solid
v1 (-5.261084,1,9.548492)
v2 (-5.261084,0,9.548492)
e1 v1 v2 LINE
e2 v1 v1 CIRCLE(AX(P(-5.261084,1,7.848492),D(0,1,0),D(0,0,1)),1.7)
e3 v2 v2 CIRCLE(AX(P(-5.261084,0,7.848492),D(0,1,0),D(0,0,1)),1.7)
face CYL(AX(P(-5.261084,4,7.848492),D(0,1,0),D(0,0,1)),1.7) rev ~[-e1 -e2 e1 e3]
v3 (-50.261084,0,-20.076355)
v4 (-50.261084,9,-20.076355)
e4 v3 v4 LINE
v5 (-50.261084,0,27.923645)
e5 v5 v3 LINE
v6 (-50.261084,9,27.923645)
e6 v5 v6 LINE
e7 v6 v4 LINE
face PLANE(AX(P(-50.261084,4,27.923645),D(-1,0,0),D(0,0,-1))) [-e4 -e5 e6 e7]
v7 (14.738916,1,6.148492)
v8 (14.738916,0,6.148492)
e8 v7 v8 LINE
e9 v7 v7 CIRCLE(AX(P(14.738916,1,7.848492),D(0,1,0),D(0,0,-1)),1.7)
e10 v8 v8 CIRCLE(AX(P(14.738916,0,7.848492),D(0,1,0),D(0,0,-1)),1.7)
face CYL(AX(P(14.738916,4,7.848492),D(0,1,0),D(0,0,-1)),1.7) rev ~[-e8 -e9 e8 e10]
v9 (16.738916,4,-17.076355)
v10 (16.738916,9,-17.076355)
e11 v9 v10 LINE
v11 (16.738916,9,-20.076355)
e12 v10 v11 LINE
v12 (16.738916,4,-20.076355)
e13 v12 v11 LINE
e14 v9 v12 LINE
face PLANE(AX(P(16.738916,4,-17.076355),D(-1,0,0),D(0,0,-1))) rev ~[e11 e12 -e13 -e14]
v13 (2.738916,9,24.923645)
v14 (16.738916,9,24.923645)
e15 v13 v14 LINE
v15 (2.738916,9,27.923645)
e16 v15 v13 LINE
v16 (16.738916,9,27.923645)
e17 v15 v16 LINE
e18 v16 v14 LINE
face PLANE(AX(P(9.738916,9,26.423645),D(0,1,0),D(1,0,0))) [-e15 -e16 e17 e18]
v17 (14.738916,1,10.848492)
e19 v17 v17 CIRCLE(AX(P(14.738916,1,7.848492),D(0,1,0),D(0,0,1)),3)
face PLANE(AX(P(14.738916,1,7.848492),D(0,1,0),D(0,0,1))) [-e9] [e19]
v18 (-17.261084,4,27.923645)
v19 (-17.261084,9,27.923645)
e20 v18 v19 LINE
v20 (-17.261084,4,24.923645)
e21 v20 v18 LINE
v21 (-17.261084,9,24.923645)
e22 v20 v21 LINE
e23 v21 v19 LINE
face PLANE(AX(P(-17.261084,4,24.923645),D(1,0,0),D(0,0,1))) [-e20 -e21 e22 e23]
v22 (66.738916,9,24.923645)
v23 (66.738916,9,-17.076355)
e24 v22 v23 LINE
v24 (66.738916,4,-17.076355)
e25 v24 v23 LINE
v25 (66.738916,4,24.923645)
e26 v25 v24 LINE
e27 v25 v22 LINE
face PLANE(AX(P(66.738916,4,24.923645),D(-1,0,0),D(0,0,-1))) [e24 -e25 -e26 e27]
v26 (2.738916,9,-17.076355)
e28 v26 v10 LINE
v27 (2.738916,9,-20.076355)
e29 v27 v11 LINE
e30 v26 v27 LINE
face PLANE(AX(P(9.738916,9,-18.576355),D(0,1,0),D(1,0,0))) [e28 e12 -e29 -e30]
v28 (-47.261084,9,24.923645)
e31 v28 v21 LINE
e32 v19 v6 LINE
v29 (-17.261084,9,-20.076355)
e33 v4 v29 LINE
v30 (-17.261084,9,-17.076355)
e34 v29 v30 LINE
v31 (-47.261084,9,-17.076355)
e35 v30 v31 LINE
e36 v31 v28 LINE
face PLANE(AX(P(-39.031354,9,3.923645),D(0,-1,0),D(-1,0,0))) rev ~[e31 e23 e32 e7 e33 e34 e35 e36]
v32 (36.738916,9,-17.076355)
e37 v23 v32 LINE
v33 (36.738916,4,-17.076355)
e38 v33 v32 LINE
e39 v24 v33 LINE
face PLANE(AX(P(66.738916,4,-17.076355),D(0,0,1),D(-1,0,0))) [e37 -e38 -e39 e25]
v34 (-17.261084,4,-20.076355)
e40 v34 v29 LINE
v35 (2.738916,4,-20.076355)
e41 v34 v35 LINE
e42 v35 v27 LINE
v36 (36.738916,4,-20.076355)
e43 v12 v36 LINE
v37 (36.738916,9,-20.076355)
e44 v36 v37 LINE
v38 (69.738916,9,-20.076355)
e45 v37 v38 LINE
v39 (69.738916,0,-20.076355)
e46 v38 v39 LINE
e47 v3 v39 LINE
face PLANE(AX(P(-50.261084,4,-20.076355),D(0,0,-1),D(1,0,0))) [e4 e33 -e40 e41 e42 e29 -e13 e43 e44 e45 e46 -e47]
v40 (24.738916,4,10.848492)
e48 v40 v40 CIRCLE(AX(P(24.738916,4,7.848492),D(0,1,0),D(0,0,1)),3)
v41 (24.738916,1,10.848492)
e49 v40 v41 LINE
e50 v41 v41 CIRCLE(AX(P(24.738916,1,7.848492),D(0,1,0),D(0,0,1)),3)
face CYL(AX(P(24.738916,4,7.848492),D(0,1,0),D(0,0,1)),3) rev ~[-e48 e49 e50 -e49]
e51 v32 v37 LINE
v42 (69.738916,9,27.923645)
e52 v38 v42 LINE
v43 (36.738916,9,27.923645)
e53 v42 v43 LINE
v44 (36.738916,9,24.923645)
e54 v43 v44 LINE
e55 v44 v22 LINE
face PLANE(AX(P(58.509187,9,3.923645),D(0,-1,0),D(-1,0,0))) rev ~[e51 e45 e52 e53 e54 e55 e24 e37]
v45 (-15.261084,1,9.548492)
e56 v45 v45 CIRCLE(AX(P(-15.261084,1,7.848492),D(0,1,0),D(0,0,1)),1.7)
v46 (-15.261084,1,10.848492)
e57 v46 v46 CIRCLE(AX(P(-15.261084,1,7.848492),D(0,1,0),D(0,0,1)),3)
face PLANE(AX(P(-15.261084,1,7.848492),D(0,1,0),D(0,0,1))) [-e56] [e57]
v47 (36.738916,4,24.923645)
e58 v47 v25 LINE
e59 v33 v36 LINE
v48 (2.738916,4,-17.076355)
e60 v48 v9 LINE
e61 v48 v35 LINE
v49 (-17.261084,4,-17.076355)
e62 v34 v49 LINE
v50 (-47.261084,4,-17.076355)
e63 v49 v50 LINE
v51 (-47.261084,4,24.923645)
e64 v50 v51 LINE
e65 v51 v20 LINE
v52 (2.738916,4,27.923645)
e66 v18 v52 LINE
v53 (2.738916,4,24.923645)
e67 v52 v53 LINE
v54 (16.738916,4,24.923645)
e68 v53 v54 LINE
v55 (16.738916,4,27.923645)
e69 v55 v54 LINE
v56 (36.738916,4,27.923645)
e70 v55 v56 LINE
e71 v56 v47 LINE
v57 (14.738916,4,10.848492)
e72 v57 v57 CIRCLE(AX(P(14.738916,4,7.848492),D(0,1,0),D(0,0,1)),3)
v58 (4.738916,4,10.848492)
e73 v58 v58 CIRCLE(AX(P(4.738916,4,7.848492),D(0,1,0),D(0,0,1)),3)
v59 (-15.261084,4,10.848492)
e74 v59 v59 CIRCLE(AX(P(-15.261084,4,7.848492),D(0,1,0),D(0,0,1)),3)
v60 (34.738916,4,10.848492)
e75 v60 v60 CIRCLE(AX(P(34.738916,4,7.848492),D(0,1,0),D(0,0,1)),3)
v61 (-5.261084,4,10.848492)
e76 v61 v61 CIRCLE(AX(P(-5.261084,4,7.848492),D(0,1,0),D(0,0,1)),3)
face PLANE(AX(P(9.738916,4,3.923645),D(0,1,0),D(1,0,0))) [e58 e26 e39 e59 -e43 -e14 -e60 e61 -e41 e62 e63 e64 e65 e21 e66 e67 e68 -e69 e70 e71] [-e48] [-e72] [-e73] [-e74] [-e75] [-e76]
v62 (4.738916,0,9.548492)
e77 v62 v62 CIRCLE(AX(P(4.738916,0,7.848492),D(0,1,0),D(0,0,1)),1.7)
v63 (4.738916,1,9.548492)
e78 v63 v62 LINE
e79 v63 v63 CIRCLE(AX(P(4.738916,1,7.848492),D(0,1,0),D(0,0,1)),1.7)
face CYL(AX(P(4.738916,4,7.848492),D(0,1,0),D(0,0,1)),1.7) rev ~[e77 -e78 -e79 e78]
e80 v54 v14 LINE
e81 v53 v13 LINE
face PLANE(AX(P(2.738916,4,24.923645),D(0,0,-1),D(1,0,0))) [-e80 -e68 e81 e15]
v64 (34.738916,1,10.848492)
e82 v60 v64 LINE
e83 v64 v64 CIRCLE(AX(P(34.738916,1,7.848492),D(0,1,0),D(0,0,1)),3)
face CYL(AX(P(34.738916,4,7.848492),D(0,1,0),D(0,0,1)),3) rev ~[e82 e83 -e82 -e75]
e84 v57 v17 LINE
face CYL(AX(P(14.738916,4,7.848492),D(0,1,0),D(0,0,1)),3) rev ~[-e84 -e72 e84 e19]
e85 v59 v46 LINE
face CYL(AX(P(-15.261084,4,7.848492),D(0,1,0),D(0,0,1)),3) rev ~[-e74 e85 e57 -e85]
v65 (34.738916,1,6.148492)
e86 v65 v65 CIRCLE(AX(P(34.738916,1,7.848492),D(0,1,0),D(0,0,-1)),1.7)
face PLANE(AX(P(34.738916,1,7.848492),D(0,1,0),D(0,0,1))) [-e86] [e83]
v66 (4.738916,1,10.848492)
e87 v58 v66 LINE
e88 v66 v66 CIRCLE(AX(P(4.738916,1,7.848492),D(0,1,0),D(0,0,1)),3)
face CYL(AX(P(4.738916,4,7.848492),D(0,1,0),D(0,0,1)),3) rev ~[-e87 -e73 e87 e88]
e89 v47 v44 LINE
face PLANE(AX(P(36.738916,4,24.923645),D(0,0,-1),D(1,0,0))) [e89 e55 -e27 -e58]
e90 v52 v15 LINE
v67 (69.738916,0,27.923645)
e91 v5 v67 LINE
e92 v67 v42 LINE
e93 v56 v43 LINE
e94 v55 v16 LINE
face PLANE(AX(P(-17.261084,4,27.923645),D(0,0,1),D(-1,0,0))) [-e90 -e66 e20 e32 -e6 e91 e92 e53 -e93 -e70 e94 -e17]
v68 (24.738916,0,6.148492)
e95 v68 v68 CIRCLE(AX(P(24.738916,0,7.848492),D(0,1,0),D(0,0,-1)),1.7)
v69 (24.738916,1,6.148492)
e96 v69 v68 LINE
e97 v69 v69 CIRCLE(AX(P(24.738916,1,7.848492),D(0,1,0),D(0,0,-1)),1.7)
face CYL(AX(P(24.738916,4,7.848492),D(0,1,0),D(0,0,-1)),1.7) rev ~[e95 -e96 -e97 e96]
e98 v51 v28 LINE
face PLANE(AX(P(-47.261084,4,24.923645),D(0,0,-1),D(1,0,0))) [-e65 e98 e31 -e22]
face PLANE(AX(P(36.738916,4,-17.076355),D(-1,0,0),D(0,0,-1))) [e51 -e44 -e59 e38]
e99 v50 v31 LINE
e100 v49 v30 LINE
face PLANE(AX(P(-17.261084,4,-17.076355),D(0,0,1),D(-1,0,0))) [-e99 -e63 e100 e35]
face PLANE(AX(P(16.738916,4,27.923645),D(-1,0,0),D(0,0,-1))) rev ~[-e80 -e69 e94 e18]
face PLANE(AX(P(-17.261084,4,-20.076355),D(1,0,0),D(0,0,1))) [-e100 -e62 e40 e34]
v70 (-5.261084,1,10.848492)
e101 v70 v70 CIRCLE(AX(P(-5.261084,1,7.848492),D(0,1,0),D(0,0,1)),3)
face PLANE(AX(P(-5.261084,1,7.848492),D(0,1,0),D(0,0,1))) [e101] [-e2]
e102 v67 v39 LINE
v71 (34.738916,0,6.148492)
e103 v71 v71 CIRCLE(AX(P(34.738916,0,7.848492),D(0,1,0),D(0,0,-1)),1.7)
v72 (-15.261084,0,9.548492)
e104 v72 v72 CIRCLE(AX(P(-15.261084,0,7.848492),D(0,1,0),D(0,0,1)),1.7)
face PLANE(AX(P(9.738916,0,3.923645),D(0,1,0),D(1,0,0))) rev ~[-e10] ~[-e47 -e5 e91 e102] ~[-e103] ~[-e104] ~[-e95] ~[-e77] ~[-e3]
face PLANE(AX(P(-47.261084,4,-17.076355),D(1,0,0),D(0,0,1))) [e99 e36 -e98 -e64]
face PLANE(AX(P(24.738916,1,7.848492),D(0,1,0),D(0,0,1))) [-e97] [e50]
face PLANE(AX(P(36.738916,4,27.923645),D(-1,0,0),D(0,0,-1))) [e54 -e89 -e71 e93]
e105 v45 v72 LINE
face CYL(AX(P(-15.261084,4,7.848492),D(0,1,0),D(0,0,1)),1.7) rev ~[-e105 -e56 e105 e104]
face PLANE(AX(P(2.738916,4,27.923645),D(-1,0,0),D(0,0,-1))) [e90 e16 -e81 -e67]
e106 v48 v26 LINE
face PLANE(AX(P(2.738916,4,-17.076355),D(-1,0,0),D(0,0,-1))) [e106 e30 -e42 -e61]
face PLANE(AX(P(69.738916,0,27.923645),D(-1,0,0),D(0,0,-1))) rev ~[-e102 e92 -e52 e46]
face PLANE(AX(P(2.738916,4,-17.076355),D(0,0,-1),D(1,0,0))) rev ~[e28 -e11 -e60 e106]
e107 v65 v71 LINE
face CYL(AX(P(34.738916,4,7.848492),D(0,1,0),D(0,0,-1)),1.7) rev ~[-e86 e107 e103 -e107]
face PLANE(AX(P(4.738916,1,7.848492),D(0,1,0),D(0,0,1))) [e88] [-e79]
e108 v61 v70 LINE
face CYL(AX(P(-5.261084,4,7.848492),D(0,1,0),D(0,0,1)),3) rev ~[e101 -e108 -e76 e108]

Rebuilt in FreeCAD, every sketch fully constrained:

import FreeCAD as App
import Part
import Sketcher

V = App.Vector
Q = App.Units.Quantity


def add_polygon(sketch, points):
    """Adds a closed chain of lines whose ends are joined by coincident constraints."""
    first, n = sketch.GeometryCount, len(points)
    for a, b in zip(points, points[1:] + points[:1]):
        sketch.addGeometry(Part.LineSegment(App.Vector(*a, 0), App.Vector(*b, 0)), False)
    for i in range(n):
        sketch.addConstraint(Sketcher.Constraint("Coincident", first + i, 2, first + (i + 1) % n, 1))

doc = App.newDocument("Part")
body = doc.addObject("PartDesign::Body", "Body")

sketch1 = doc.addObject("Sketcher::SketchObject", "Sketch")
body.addObject(sketch1)
sketch1.AttachmentSupport = (doc.XZ_Plane, [""])
sketch1.MapMode = "FlatFace"
add_polygon(sketch1, [(-50, -20), (-50, 28), (70, 28), (70, -20)])
sketch1.addConstraint(Sketcher.Constraint("Vertical", 0))
sketch1.addConstraint(Sketcher.Constraint("Horizontal", 1))
sketch1.addConstraint(Sketcher.Constraint("Vertical", 2))
sketch1.addConstraint(Sketcher.Constraint("Horizontal", 3))
sketch1.addConstraint(Sketcher.Constraint("DistanceX", 1, 1, 1, 2, Q("120 mm")))
sketch1.addConstraint(Sketcher.Constraint("DistanceY", 0, 1, 0, 2, Q("48 mm")))
sketch1.addConstraint(Sketcher.Constraint("DistanceX", 0, 2, -1, 1, Q("50.261084 mm")))
sketch1.addConstraint(Sketcher.Constraint("DistanceY", -1, 1, 0, 2, Q("27.923645 mm")))
pad1 = doc.addObject("PartDesign::Pad", "Pad")
body.addObject(pad1)
pad1.Profile = sketch1
pad1.Length = 4
pad1.Reversed = True

sketch2 = doc.addObject("Sketcher::SketchObject", "Sketch001")
body.addObject(sketch2)
sketch2.AttachmentSupport = (doc.XZ_Plane, [""])
sketch2.MapMode = "FlatFace"
sketch2.AttachmentOffset = App.Placement(V(0, 0, -4), App.Rotation())
add_polygon(sketch2, [(-17.3, -20.1), (-50.3, -20.1), (-50.3, 27.9), (-17.3, 27.9), (-17.3, 24.9), (-47.3, 24.9), (-47.3, -17.1), (-17.3, -17.1)])
add_polygon(sketch2, [(69.7, 27.9), (69.7, -20.1), (36.7, -20.1), (36.7, -17.1), (66.7, -17.1), (66.7, 24.9), (36.7, 24.9), (36.7, 27.9)])
add_polygon(sketch2, [(2.7, -20.1), (2.7, -17.1), (16.7, -17.1), (16.7, -20.1)])
add_polygon(sketch2, [(2.7, 24.9), (2.7, 27.9), (16.7, 27.9), (16.7, 24.9)])
sketch2.addConstraint(Sketcher.Constraint("Horizontal", 0))
sketch2.addConstraint(Sketcher.Constraint("Vertical", 1))
sketch2.addConstraint(Sketcher.Constraint("Horizontal", 2))
sketch2.addConstraint(Sketcher.Constraint("Vertical", 3))
sketch2.addConstraint(Sketcher.Constraint("Horizontal", 4))
sketch2.addConstraint(Sketcher.Constraint("Vertical", 5))
sketch2.addConstraint(Sketcher.Constraint("Horizontal", 6))
sketch2.addConstraint(Sketcher.Constraint("Vertical", 7))
sketch2.addConstraint(Sketcher.Constraint("Vertical", 8))
sketch2.addConstraint(Sketcher.Constraint("Horizontal", 9))
sketch2.addConstraint(Sketcher.Constraint("Vertical", 10))
sketch2.addConstraint(Sketcher.Constraint("Horizontal", 11))
sketch2.addConstraint(Sketcher.Constraint("Vertical", 12))
sketch2.addConstraint(Sketcher.Constraint("Horizontal", 13))
sketch2.addConstraint(Sketcher.Constraint("Vertical", 14))
sketch2.addConstraint(Sketcher.Constraint("Horizontal", 15))
sketch2.addConstraint(Sketcher.Constraint("Vertical", 16))
sketch2.addConstraint(Sketcher.Constraint("Horizontal", 17))
sketch2.addConstraint(Sketcher.Constraint("Vertical", 18))
sketch2.addConstraint(Sketcher.Constraint("Horizontal", 19))
sketch2.addConstraint(Sketcher.Constraint("Vertical", 20))
sketch2.addConstraint(Sketcher.Constraint("Horizontal", 21))
sketch2.addConstraint(Sketcher.Constraint("Vertical", 22))
sketch2.addConstraint(Sketcher.Constraint("Horizontal", 23))
sketch2.addConstraint(Sketcher.Constraint("Horizontal", 7, 2, 8, 2))
sketch2.addConstraint(Sketcher.Constraint("Horizontal", 6, 2, 10, 2))
sketch2.addConstraint(Sketcher.Constraint("Horizontal", 4, 2, 12, 2))
sketch2.addConstraint(Sketcher.Constraint("Horizontal", 2, 2, 14, 2))
sketch2.addConstraint(Sketcher.Constraint("Horizontal", 11, 2, 16, 2))
sketch2.addConstraint(Sketcher.Constraint("Horizontal", 9, 2, 18, 2))
sketch2.addConstraint(Sketcher.Constraint("Horizontal", 15, 2, 20, 2))
sketch2.addConstraint(Sketcher.Constraint("Horizontal", 13, 2, 22, 2))
sketch2.addConstraint(Sketcher.Constraint("Vertical", 3, 2, 6, 2))
sketch2.addConstraint(Sketcher.Constraint("Vertical", 10, 2, 13, 2))
sketch2.addConstraint(Sketcher.Constraint("Vertical", 19, 2, 20, 2))
sketch2.addConstraint(Sketcher.Constraint("Vertical", 18, 2, 21, 2))
sketch2.addConstraint(Sketcher.Constraint("Equal", 2, 9))
sketch2.addConstraint(Sketcher.Constraint("Equal", 6, 11))
sketch2.addConstraint(Sketcher.Constraint("Equal", 3, 7))
sketch2.addConstraint(Sketcher.Constraint("DistanceX", 0, 2, 0, 1, Q("33 mm")))
sketch2.addConstraint(Sketcher.Constraint("DistanceX", 4, 2, 4, 1, Q("30 mm")))
sketch2.addConstraint(Sketcher.Constraint("DistanceX", 17, 1, 17, 2, Q("14 mm")))
sketch2.addConstraint(Sketcher.Constraint("DistanceY", 1, 1, 1, 2, Q("48 mm")))
sketch2.addConstraint(Sketcher.Constraint("DistanceY", 3, 2, 3, 1, Q("3 mm")))
sketch2.addConstraint(Sketcher.Constraint("DistanceX", 7, 2, 8, 2, Q("87 mm")))
sketch2.addConstraint(Sketcher.Constraint("DistanceX", 6, 2, 16, 2, Q("20 mm")))
sketch2.addConstraint(Sketcher.Constraint("DistanceX", 0, 2, -1, 1, Q("50.261084 mm")))
sketch2.addConstraint(Sketcher.Constraint("DistanceY", 0, 2, -1, 1, Q("20.076355 mm")))
pad2 = doc.addObject("PartDesign::Pad", "Pad001")
body.addObject(pad2)
pad2.Profile = sketch2
pad2.Length = 5
pad2.Reversed = True

sketch3 = doc.addObject("Sketcher::SketchObject", "Sketch002")
body.addObject(sketch3)
sketch3.AttachmentSupport = (doc.XZ_Plane, [""])
sketch3.MapMode = "FlatFace"
sketch3.AttachmentOffset = App.Placement(V(0, 0, -4), App.Rotation())
sketch3.addGeometry(Part.Circle(V(4.7, 7.8, 0), V(0, 0, 1), 1.7), False)
sketch3.addGeometry(Part.Circle(V(-5.3, 7.8, 0), V(0, 0, 1), 1.7), False)
sketch3.addGeometry(Part.Circle(V(-15.3, 7.8, 0), V(0, 0, 1), 1.7), False)
sketch3.addGeometry(Part.Circle(V(34.7, 7.8, 0), V(0, 0, 1), 1.7), False)
sketch3.addGeometry(Part.Circle(V(24.7, 7.8, 0), V(0, 0, 1), 1.7), False)
sketch3.addGeometry(Part.Circle(V(14.7, 7.8, 0), V(0, 0, 1), 1.7), False)
sketch3.addConstraint(Sketcher.Constraint("Equal", 0, 1))
sketch3.addConstraint(Sketcher.Constraint("Equal", 1, 2))
sketch3.addConstraint(Sketcher.Constraint("Equal", 2, 3))
sketch3.addConstraint(Sketcher.Constraint("Equal", 3, 4))
sketch3.addConstraint(Sketcher.Constraint("Equal", 4, 5))
sketch3.addConstraint(Sketcher.Constraint("Horizontal", 0, 3, 1, 3))
sketch3.addConstraint(Sketcher.Constraint("Horizontal", 1, 3, 2, 3))
sketch3.addConstraint(Sketcher.Constraint("Horizontal", 2, 3, 3, 3))
sketch3.addConstraint(Sketcher.Constraint("Horizontal", 3, 3, 4, 3))
sketch3.addConstraint(Sketcher.Constraint("Horizontal", 4, 3, 5, 3))
sketch3.addConstraint(Sketcher.Constraint("Diameter", 0, Q("3.4 mm")))
sketch3.addConstraint(Sketcher.Constraint("DistanceX", 1, 3, 0, 3, Q("10 mm")))
sketch3.addConstraint(Sketcher.Constraint("DistanceX", 2, 3, 1, 3, Q("10 mm")))
sketch3.addConstraint(Sketcher.Constraint("DistanceX", 0, 3, 3, 3, Q("30 mm")))
sketch3.addConstraint(Sketcher.Constraint("DistanceX", 4, 3, 3, 3, Q("10 mm")))
sketch3.addConstraint(Sketcher.Constraint("DistanceX", 0, 3, 5, 3, Q("10 mm")))
sketch3.addConstraint(Sketcher.Constraint("DistanceX", -1, 1, 0, 3, Q("4.738916 mm")))
sketch3.addConstraint(Sketcher.Constraint("DistanceY", -1, 1, 0, 3, Q("7.848492 mm")))
pocket1 = doc.addObject("PartDesign::Pocket", "Pocket")
body.addObject(pocket1)
pocket1.Profile = sketch3
pocket1.Length = 5
pocket1.Reversed = True

sketch4 = doc.addObject("Sketcher::SketchObject", "Sketch003")
body.addObject(sketch4)
sketch4.AttachmentSupport = (doc.XZ_Plane, [""])
sketch4.MapMode = "FlatFace"
sketch4.AttachmentOffset = App.Placement(V(0, 0, -4), App.Rotation())
sketch4.addGeometry(Part.Circle(V(-15.3, 7.8, 0), V(0, 0, 1), 3), False)
sketch4.addGeometry(Part.Circle(V(-5.3, 7.8, 0), V(0, 0, 1), 3), False)
sketch4.addGeometry(Part.Circle(V(4.7, 7.8, 0), V(0, 0, 1), 3), False)
sketch4.addGeometry(Part.Circle(V(14.7, 7.8, 0), V(0, 0, 1), 3), False)
sketch4.addGeometry(Part.Circle(V(24.7, 7.8, 0), V(0, 0, 1), 3), False)
sketch4.addGeometry(Part.Circle(V(34.7, 7.8, 0), V(0, 0, 1), 3), False)
sketch4.addConstraint(Sketcher.Constraint("Equal", 0, 1))
sketch4.addConstraint(Sketcher.Constraint("Equal", 1, 2))
sketch4.addConstraint(Sketcher.Constraint("Equal", 2, 3))
sketch4.addConstraint(Sketcher.Constraint("Equal", 3, 4))
sketch4.addConstraint(Sketcher.Constraint("Equal", 4, 5))
sketch4.addConstraint(Sketcher.Constraint("Horizontal", 0, 3, 1, 3))
sketch4.addConstraint(Sketcher.Constraint("Horizontal", 1, 3, 2, 3))
sketch4.addConstraint(Sketcher.Constraint("Horizontal", 2, 3, 3, 3))
sketch4.addConstraint(Sketcher.Constraint("Horizontal", 3, 3, 4, 3))
sketch4.addConstraint(Sketcher.Constraint("Horizontal", 4, 3, 5, 3))
sketch4.addConstraint(Sketcher.Constraint("Diameter", 0, Q("6 mm")))
sketch4.addConstraint(Sketcher.Constraint("DistanceX", 0, 3, 1, 3, Q("10 mm")))
sketch4.addConstraint(Sketcher.Constraint("DistanceX", 1, 3, 2, 3, Q("10 mm")))
sketch4.addConstraint(Sketcher.Constraint("DistanceX", 2, 3, 3, 3, Q("10 mm")))
sketch4.addConstraint(Sketcher.Constraint("DistanceX", 3, 3, 4, 3, Q("10 mm")))
sketch4.addConstraint(Sketcher.Constraint("DistanceX", 4, 3, 5, 3, Q("10 mm")))
sketch4.addConstraint(Sketcher.Constraint("DistanceX", 0, 3, -1, 1, Q("15.261084 mm")))
sketch4.addConstraint(Sketcher.Constraint("DistanceY", -1, 1, 0, 3, Q("7.848492 mm")))
pocket2 = doc.addObject("PartDesign::Pocket", "Pocket001")
body.addObject(pocket2)
pocket2.Profile = sketch4
pocket2.Length = 3
pocket2.Reversed = True

doc.recompute()
